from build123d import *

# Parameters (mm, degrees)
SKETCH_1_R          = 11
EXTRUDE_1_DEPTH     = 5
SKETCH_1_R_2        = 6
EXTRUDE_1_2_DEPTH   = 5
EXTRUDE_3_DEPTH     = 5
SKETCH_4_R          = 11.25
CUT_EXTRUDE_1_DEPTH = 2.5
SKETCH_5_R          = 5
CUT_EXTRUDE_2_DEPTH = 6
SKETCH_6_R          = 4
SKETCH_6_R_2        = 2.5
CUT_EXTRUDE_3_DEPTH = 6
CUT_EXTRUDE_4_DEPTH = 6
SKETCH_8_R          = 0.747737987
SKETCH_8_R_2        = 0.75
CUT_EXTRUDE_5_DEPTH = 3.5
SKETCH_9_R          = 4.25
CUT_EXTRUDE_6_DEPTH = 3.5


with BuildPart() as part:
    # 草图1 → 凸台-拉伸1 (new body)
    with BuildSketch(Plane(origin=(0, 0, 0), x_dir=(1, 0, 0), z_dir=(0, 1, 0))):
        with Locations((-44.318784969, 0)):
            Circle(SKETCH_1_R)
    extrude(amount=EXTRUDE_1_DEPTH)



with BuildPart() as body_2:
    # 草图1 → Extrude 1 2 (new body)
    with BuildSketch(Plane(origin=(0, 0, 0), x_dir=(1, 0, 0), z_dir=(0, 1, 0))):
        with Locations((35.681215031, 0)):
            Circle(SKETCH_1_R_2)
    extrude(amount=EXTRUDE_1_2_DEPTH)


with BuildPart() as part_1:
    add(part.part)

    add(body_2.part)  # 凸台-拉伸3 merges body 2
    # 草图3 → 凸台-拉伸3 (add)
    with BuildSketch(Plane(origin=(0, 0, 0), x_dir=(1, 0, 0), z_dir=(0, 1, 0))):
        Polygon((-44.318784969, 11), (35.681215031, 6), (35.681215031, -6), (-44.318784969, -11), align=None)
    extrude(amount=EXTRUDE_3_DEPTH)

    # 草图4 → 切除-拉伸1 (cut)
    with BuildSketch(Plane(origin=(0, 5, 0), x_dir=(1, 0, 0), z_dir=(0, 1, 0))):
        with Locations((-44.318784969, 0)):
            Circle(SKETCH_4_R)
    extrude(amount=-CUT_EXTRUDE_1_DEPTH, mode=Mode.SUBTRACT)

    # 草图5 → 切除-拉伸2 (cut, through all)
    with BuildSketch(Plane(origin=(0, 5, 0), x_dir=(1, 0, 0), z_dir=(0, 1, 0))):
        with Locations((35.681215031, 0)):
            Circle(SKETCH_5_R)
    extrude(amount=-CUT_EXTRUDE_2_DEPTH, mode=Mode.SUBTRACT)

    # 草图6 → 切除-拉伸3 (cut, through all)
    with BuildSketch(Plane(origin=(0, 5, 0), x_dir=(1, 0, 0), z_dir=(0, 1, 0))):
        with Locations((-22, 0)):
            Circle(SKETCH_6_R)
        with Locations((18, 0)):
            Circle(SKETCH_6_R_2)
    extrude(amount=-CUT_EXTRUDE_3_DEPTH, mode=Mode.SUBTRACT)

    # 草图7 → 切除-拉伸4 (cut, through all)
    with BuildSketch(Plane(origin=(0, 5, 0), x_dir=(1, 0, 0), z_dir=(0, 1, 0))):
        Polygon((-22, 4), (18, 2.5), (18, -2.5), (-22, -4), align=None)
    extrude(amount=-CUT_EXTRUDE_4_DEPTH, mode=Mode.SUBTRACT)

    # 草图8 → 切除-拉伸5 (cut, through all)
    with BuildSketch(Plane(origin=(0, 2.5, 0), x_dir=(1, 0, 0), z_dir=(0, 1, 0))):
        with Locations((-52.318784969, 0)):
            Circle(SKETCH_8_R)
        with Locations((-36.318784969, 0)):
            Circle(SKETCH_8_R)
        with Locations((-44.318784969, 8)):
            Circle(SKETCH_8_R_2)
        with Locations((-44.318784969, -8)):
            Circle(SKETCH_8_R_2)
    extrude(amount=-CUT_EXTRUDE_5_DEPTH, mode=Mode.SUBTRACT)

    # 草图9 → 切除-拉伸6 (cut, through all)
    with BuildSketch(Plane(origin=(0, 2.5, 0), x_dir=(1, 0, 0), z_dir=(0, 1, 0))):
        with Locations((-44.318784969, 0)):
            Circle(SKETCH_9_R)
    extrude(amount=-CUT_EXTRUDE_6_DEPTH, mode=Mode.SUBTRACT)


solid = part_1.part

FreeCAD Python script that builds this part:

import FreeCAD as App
import Part
import Sketcher

V = App.Vector
Q = App.Units.Quantity


def add_polygon(sketch, points):
    """Adds a closed chain of lines whose ends are joined by coincident constraints."""
    first, n = sketch.GeometryCount, len(points)
    for a, b in zip(points, points[1:] + points[:1]):
        sketch.addGeometry(Part.LineSegment(App.Vector(*a, 0), App.Vector(*b, 0)), False)
    for i in range(n):
        sketch.addConstraint(Sketcher.Constraint("Coincident", first + i, 2, first + (i + 1) % n, 1))

doc = App.newDocument("Part")
body = doc.addObject("PartDesign::Body", "Body")

sketch1 = body.newObject("Sketcher::SketchObject", "Sketch")
sketch1.AttachmentSupport = (doc.getObject("XZ_Plane"), [""])
sketch1.MapMode = "FlatFace"
sketch1.addGeometry(Part.Circle(V(-44.318785, 0, 0), V(0, 0, 1), 11), False)
sketch1.addConstraint([
    Sketcher.Constraint("PointOnObject", 0, 3, -1),
    Sketcher.Constraint("Diameter", 0, Q("22 mm")),
    Sketcher.Constraint("DistanceX", 0, 3, -1, 1, Q("44.318785 mm")),
])
pad1 = body.newObject("PartDesign::Pad", "Pad")
pad1.Profile = sketch1
pad1.Length = 5
pad1.Reversed = True
body2 = doc.addObject("PartDesign::Body", "Body001")

sketch2 = body2.newObject("Sketcher::SketchObject", "Sketch001")
sketch2.AttachmentSupport = (doc.getObject("XZ_Plane001"), [""])
sketch2.MapMode = "FlatFace"
sketch2.addGeometry(Part.Circle(V(35.681215, 0, 0), V(0, 0, 1), 6), False)
sketch2.addConstraint([
    Sketcher.Constraint("PointOnObject", 0, 3, -1),
    Sketcher.Constraint("Diameter", 0, Q("12 mm")),
    Sketcher.Constraint("DistanceX", -1, 1, 0, 3, Q("35.681215 mm")),
])
pad2 = body2.newObject("PartDesign::Pad", "Pad001")
pad2.Profile = sketch2
pad2.Length = 5
pad2.Reversed = True
body.AllowCompound = True
doc.recompute()

boolean = body.newObject("PartDesign::Boolean", "Boolean")
boolean.Type = "Fuse"
boolean.addObjects([body2])

sketch3 = body.newObject("Sketcher::SketchObject", "Sketch002")
sketch3.AttachmentSupport = (doc.getObject("XZ_Plane"), [""])
sketch3.MapMode = "FlatFace"
add_polygon(sketch3, [(35.681215, -6), (-44.318785, -11), (-44.318785, 11), (35.681215, 6)])
sketch3.addConstraint([
    Sketcher.Constraint("Vertical", 1),
    Sketcher.Constraint("Vertical", 3),
    Sketcher.Constraint("Equal", 0, 2),
    Sketcher.Constraint("DistanceY", 1, 1, 1, 2, Q("22 mm")),
    Sketcher.Constraint("DistanceY", 3, 2, 3, 1, Q("12 mm")),
    Sketcher.Constraint("DistanceY", 0, 2, -1, 1, Q("11 mm")),
    Sketcher.Constraint("DistanceX", 1, 2, 2, 2, Q("80 mm")),
    Sketcher.Constraint("DistanceX", 0, 2, -1, 1, Q("44.318785 mm")),
])
pad3 = body.newObject("PartDesign::Pad", "Pad002")
pad3.Profile = sketch3
pad3.Length = 5
pad3.Reversed = True

sketch4 = body.newObject("Sketcher::SketchObject", "Sketch003")
sketch4.AttachmentSupport = (doc.getObject("XZ_Plane"), [""])
sketch4.MapMode = "FlatFace"
sketch4.AttachmentOffset = App.Placement(V(0, 0, -5), App.Rotation())
sketch4.addGeometry(Part.Circle(V(-44.318785, 0, 0), V(0, 0, 1), 11.25), False)
sketch4.addConstraint([
    Sketcher.Constraint("PointOnObject", 0, 3, -1),
    Sketcher.Constraint("Diameter", 0, Q("22.5 mm")),
    Sketcher.Constraint("DistanceX", 0, 3, -1, 1, Q("44.318785 mm")),
])
pocket1 = body.newObject("PartDesign::Pocket", "Pocket")
pocket1.Profile = sketch4
pocket1.Length = 2.5
pocket1.Reversed = True

sketch5 = body.newObject("Sketcher::SketchObject", "Sketch004")
sketch5.AttachmentSupport = (doc.getObject("XZ_Plane"), [""])
sketch5.MapMode = "FlatFace"
sketch5.AttachmentOffset = App.Placement(V(0, 0, -5), App.Rotation())
sketch5.addGeometry(Part.Circle(V(35.681215, 0, 0), V(0, 0, 1), 5), False)
sketch5.addConstraint([
    Sketcher.Constraint("PointOnObject", 0, 3, -1),
    Sketcher.Constraint("Diameter", 0, Q("10 mm")),
    Sketcher.Constraint("DistanceX", -1, 1, 0, 3, Q("35.681215 mm")),
])
pocket2 = body.newObject("PartDesign::Pocket", "Pocket001")
pocket2.Profile = sketch5
pocket2.Type = "ThroughAll"
pocket2.Reversed = True

sketch6 = body.newObject("Sketcher::SketchObject", "Sketch005")
sketch6.AttachmentSupport = (doc.getObject("XZ_Plane"), [""])
sketch6.MapMode = "FlatFace"
sketch6.AttachmentOffset = App.Placement(V(0, 0, -5), App.Rotation())
sketch6.addGeometry([
    Part.Circle(V(-22, 0, 0), V(0, 0, 1), 4),
    Part.Circle(V(18, 0, 0), V(0, 0, 1), 2.5),
], False)
sketch6.addConstraint([
    Sketcher.Constraint("PointOnObject", 0, 3, -1),
    Sketcher.Constraint("PointOnObject", 1, 3, -1),
    Sketcher.Constraint("Diameter", 0, Q("8 mm")),
    Sketcher.Constraint("Diameter", 1, Q("5 mm")),
    Sketcher.Constraint("DistanceX", 0, 3, -1, 1, Q("22 mm")),
    Sketcher.Constraint("DistanceX", -1, 1, 1, 3, Q("18 mm")),
])
pocket3 = body.newObject("PartDesign::Pocket", "Pocket002")
pocket3.Profile = sketch6
pocket3.Type = "ThroughAll"
pocket3.Reversed = True

sketch7 = body.newObject("Sketcher::SketchObject", "Sketch006")
sketch7.AttachmentSupport = (doc.getObject("XZ_Plane"), [""])
sketch7.MapMode = "FlatFace"
sketch7.AttachmentOffset = App.Placement(V(0, 0, -5), App.Rotation())
add_polygon(sketch7, [(18, -2.5), (-22, -4), (-22, 4), (18, 2.5)])
sketch7.addConstraint([
    Sketcher.Constraint("Vertical", 1),
    Sketcher.Constraint("Vertical", 3),
    Sketcher.Constraint("Equal", 0, 2),
    Sketcher.Constraint("DistanceY", 1, 1, 1, 2, Q("8 mm")),
    Sketcher.Constraint("DistanceY", 3, 2, 3, 1, Q("5 mm")),
    Sketcher.Constraint("DistanceX", 0, 2, -1, 1, Q("22 mm")),
    Sketcher.Constraint("DistanceY", 0, 2, -1, 1, Q("4 mm")),
    Sketcher.Constraint("DistanceX", -1, 1, 2, 2, Q("18 mm")),
])
pocket4 = body.newObject("PartDesign::Pocket", "Pocket003")
pocket4.Profile = sketch7
pocket4.Type = "ThroughAll"
pocket4.Reversed = True

sketch8 = body.newObject("Sketcher::SketchObject", "Sketch007")
sketch8.AttachmentSupport = (doc.getObject("XZ_Plane"), [""])
sketch8.MapMode = "FlatFace"
sketch8.AttachmentOffset = App.Placement(V(0, 0, -2.5), App.Rotation())
sketch8.addGeometry([
    Part.Circle(V(-52.318785, 0, 0), V(0, 0, 1), 0.747738),
    Part.Circle(V(-36.318785, 0, 0), V(0, 0, 1), 0.747738),
    Part.Circle(V(-44.318785, -8, 0), V(0, 0, 1), 0.75),
    Part.Circle(V(-44.318785, 8, 0), V(0, 0, 1), 0.75),
], False)
sketch8.addConstraint([
    Sketcher.Constraint("Equal", 0, 1),
    Sketcher.Constraint("Equal", 2, 3),
    Sketcher.Constraint("Symmetric", 2, 3, 3, 3, -1),
    Sketcher.Constraint("PointOnObject", 0, 3, -1),
    Sketcher.Constraint("PointOnObject", 1, 3, -1),
    Sketcher.Constraint("Diameter", 2, Q("1.5 mm")),
    Sketcher.Constraint("DistanceY", 2, 3, -1, 1, Q("8 mm")),
    Sketcher.Constraint("DistanceX", 0, 3, 1, 3, Q("16 mm")),
    Sketcher.Constraint("DistanceX", 0, 3, 2, 3, Q("8 mm")),
    Sketcher.Constraint("Diameter", 0, Q("1.495476 mm")),
    Sketcher.Constraint("DistanceX", 0, 3, -1, 1, Q("52.318785 mm")),
])
pocket5 = body.newObject("PartDesign::Pocket", "Pocket004")
pocket5.Profile = sketch8
pocket5.Type = "ThroughAll"
pocket5.Reversed = True

sketch9 = body.newObject("Sketcher::SketchObject", "Sketch008")
sketch9.AttachmentSupport = (doc.getObject("XZ_Plane"), [""])
sketch9.MapMode = "FlatFace"
sketch9.AttachmentOffset = App.Placement(V(0, 0, -2.5), App.Rotation())
sketch9.addGeometry(Part.Circle(V(-44.318785, 0, 0), V(0, 0, 1), 4.25), False)
sketch9.addConstraint([
    Sketcher.Constraint("PointOnObject", 0, 3, -1),
    Sketcher.Constraint("Diameter", 0, Q("8.5 mm")),
    Sketcher.Constraint("DistanceX", 0, 3, -1, 1, Q("44.318785 mm")),
])
pocket6 = body.newObject("PartDesign::Pocket", "Pocket005")
pocket6.Profile = sketch9
pocket6.Type = "ThroughAll"
pocket6.Reversed = True

doc.recompute()
